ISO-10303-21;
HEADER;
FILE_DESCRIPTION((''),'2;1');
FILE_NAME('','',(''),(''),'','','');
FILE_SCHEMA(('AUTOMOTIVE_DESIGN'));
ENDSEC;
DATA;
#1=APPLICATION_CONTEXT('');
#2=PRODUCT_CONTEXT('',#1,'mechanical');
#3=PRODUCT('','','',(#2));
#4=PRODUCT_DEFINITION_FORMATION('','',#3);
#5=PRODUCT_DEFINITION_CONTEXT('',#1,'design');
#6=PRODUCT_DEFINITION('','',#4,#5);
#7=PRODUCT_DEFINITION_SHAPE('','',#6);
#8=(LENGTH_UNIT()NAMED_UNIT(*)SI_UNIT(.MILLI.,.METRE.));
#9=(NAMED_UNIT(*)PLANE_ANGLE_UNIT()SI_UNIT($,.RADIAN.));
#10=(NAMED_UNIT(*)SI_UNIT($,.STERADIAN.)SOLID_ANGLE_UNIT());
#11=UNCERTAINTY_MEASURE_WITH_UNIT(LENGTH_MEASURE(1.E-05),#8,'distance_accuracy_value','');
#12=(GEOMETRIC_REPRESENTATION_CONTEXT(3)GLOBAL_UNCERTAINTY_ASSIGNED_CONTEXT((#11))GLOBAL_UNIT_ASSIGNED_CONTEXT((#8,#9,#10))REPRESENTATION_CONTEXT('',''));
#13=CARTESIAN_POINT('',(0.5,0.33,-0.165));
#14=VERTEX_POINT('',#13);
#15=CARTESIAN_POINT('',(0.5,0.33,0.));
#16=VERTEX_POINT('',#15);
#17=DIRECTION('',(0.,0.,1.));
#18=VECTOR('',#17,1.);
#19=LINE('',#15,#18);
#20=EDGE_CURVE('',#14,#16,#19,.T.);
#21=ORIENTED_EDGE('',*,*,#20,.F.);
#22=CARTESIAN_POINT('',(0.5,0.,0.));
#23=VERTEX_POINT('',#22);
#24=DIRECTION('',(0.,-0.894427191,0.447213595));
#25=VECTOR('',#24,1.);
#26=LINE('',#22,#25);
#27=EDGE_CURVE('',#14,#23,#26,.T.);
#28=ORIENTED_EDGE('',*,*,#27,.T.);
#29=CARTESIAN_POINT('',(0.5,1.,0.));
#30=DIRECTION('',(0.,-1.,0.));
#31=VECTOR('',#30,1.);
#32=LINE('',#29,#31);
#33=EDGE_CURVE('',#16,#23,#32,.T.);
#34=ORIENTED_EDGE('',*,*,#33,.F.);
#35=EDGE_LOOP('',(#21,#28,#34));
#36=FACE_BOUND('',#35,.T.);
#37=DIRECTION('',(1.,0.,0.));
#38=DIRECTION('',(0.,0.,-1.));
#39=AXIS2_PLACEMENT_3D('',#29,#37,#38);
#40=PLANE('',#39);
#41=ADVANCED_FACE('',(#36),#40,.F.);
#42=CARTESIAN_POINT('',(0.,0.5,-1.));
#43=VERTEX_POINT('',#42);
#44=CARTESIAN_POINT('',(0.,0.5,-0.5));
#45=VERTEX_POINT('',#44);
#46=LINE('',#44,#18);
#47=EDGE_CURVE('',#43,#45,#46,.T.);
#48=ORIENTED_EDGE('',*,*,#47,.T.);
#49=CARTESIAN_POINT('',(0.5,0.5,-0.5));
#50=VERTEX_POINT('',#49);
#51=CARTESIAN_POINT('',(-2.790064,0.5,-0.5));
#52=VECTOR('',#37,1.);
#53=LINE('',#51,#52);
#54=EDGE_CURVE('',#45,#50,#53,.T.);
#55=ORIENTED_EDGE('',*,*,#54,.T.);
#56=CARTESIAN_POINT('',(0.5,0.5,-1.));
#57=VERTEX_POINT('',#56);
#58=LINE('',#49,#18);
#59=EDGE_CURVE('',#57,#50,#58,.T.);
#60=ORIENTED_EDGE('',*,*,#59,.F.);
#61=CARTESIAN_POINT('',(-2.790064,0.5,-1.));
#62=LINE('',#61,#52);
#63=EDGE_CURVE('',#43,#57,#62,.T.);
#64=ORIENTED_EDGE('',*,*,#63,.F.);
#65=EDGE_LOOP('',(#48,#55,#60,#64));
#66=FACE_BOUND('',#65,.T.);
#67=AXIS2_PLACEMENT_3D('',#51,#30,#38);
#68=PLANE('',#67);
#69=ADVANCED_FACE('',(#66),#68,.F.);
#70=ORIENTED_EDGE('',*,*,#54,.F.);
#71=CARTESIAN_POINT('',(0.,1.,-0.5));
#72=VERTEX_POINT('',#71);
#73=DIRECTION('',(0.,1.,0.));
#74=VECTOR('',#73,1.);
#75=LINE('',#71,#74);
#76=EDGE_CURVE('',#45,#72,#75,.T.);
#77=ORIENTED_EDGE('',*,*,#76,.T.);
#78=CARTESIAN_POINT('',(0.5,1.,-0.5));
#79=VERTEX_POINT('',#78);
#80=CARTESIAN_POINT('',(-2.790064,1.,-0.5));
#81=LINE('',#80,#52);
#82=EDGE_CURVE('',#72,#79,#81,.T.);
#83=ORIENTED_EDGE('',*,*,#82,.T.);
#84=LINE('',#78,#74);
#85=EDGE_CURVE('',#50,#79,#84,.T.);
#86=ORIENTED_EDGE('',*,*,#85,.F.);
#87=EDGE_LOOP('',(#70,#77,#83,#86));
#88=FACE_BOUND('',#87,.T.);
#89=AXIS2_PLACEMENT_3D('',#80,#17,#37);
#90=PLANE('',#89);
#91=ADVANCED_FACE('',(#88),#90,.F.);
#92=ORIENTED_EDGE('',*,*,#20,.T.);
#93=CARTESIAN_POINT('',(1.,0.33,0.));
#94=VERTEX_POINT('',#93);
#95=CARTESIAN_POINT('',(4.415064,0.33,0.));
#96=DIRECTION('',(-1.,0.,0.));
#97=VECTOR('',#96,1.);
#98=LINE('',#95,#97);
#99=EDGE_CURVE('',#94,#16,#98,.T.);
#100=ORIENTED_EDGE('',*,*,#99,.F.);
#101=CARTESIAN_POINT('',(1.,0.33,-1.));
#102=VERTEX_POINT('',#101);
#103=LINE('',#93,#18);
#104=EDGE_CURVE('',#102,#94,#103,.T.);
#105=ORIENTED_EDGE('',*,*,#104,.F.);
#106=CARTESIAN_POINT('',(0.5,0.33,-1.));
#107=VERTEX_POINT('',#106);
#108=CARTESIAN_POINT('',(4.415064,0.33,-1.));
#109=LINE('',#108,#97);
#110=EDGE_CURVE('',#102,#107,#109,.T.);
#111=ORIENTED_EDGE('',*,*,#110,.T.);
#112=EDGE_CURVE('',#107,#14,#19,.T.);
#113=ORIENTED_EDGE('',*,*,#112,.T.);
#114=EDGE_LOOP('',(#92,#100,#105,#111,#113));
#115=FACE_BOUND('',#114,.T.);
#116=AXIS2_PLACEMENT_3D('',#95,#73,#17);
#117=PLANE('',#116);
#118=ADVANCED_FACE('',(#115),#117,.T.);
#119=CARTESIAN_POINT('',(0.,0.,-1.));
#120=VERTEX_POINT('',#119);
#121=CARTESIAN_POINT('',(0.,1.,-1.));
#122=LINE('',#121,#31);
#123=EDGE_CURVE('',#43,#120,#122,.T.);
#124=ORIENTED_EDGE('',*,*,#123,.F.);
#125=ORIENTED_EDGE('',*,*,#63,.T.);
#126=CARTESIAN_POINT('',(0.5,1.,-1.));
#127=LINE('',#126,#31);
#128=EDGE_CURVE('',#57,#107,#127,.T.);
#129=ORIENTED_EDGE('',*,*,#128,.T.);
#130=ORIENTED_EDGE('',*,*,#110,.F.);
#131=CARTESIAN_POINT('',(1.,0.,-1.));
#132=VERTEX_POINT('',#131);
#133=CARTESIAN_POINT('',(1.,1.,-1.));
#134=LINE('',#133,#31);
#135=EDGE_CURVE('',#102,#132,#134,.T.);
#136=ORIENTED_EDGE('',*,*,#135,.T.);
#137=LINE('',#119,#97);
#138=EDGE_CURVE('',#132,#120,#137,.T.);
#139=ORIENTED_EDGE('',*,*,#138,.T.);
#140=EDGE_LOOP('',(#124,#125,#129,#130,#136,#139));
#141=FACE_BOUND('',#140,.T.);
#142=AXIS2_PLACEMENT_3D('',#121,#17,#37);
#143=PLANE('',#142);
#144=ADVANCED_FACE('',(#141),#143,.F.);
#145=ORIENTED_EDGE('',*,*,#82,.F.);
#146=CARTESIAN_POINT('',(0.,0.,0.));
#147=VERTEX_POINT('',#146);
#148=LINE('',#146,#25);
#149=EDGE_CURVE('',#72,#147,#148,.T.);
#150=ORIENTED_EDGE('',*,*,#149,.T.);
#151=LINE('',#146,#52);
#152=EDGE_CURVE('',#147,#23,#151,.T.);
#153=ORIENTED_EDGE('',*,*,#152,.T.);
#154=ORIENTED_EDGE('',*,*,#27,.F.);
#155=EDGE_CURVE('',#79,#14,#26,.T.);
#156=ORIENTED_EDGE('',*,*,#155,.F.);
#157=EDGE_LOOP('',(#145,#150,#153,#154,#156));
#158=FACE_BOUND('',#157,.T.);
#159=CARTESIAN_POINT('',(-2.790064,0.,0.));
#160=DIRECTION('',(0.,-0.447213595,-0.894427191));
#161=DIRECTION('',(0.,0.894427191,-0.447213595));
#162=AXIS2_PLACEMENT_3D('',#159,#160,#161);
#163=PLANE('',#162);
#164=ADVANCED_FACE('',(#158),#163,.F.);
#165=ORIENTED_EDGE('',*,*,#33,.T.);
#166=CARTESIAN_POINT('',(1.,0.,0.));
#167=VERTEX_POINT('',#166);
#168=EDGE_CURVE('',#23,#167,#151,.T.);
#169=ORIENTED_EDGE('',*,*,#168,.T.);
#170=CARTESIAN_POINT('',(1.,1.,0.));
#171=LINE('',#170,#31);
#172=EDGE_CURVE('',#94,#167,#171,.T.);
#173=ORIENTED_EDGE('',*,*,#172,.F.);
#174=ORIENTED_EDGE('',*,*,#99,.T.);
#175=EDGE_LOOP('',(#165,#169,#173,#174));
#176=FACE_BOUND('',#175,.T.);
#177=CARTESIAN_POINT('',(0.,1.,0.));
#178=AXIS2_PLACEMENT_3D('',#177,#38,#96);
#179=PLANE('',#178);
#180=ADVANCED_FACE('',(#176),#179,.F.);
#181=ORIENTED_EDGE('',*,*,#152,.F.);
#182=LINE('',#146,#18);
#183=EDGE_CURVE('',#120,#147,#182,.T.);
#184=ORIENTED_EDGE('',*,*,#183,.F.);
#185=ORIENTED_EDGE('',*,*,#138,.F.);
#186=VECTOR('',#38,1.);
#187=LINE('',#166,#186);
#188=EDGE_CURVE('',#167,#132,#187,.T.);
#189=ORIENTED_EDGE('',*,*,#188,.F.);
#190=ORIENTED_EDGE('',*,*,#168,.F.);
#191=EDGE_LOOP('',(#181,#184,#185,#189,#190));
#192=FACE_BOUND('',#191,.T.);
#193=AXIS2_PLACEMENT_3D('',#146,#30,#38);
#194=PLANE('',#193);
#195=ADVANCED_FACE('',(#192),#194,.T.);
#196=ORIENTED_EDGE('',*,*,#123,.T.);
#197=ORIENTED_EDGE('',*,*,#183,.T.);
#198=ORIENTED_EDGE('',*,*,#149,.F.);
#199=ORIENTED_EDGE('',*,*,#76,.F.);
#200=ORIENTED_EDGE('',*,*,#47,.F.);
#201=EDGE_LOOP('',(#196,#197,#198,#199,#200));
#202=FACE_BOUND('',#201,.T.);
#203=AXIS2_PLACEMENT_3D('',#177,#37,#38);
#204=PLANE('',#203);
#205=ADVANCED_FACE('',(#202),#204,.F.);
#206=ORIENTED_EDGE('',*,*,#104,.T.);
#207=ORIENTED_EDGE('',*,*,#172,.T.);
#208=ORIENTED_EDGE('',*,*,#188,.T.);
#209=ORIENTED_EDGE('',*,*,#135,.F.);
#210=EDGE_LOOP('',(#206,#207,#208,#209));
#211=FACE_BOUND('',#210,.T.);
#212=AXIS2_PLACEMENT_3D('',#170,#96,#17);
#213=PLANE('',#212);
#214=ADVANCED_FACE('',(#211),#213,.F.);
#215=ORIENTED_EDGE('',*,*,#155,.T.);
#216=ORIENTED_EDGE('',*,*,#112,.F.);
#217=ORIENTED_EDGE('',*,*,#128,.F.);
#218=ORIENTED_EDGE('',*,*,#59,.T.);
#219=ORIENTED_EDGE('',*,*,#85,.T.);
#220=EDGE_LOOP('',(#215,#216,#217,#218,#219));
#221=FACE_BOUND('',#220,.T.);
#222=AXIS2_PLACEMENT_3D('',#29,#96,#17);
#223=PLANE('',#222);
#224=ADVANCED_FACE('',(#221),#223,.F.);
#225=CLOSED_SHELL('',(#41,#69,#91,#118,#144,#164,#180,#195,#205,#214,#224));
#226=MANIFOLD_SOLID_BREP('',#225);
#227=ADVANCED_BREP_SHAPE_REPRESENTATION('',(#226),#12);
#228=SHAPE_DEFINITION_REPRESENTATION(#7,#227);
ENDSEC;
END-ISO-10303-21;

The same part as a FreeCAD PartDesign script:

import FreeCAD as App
import Part
import Sketcher
from FreeCAD import Vector


def add_polygon(sketch, points):
    """Adds a closed chain of lines whose ends are joined by coincident constraints."""
    first, n = sketch.GeometryCount, len(points)
    for a, b in zip(points, points[1:] + points[:1]):
        sketch.addGeometry(Part.LineSegment(App.Vector(*a, 0), App.Vector(*b, 0)), False)
    for i in range(n):
        sketch.addConstraint(Sketcher.Constraint("Coincident", first + i, 2, first + (i + 1) % n, 1))

doc = App.newDocument("Part")
params = doc.addObject("Spreadsheet::Sheet", "Params")
for row, (alias, value) in enumerate([
    ("sketch1_width", "1 mm"),
    ("pad1_length", "1 mm"),
    ("pocket1_length", "2.732051 mm"),
    ("pocket1_length2", "0.5 mm"),
    ("sketch3_width", "0.5 mm"),
    ("pocket2_length", "2.732051 mm"),
    ("pocket2_length2", "0.5 mm"),
], start=1):
    params.set(f"A{row}", alias)
    params.set(f"B{row}", "=" + value)
    params.setAlias(f"B{row}", alias)

body = doc.addObject("PartDesign::Body", "Body")

# Sketch on XZ plane
sketch1 = body.newObject("Sketcher::SketchObject", "Sketch")
sketch1.AttachmentSupport = (doc.getObject("XZ_Plane"), [""])
sketch1.MapMode = "FlatFace"
add_polygon(sketch1, [(0, -1), (0, 0), (1, 0), (1, -1)])  # lines 0-3
sketch1.addConstraint([
    Sketcher.Constraint("Vertical", 0),
    Sketcher.Constraint("Horizontal", 1),
    Sketcher.Constraint("Vertical", 2),
    Sketcher.Constraint("Horizontal", 3),
    Sketcher.Constraint("Coincident", 0, 2, -1, 1),
    Sketcher.Constraint("Equal", 3, 0),
    Sketcher.Constraint("DistanceX", 1, 1, 1, 2, 1.0),
])
sketch1.setExpression("Constraints[10]", "Params.sketch1_width")
pad1 = body.newObject("PartDesign::Pad", "Pad")
pad1.Profile = sketch1
pad1.setExpression("Length", "Params.pad1_length")
pad1.Reversed = True

# Sketch on YZ plane
sketch2 = body.newObject("Sketcher::SketchObject", "Sketch001")
sketch2.AttachmentSupport = (doc.getObject("YZ_Plane"), [""])
sketch2.MapMode = "FlatFace"
sketch2.AttachmentOffset = App.Placement(Vector(0, 0, 1), App.Rotation())
add_polygon(sketch2, [(0, 12), (0, -13), (25, -13), (25, 12)])  # lines 0-3
sketch2.addConstraint([
    Sketcher.Constraint("Vertical", 0),
    Sketcher.Constraint("Horizontal", 1),
    Sketcher.Constraint("Vertical", 2),
    Sketcher.Constraint("Horizontal", 3),
    Sketcher.Constraint("DistanceX", -1, 1, 0, 2, 0.33),
    Sketcher.Constraint("DistanceX", 1, 1, 1, 2, 24.81481),
    Sketcher.Constraint("DistanceY", 0, 2, 0, 1, 25.81481),
    Sketcher.Constraint("DistanceY", 0, 2, -1, 1, 13.407405),
])
pocket1 = body.newObject("PartDesign::Pocket", "Pocket")
pocket1.Profile = sketch2
pocket1.Type = "TwoLengths"
pocket1.setExpression("Length", "Params.pocket1_length")
pocket1.setExpression("Length2", "Params.pocket1_length2")
pocket1.Reversed = True

# Sketch on YZ plane
sketch3 = body.newObject("Sketcher::SketchObject", "Sketch002")
sketch3.AttachmentSupport = (doc.getObject("YZ_Plane"), [""])
sketch3.MapMode = "FlatFace"
add_polygon(sketch3, [(1, -0.5), (-11.5, 5.7), (10.4, 19.1), (22.4, -0.4), (0.5, -13.8), (0.5, -0.5)])  # lines 0-5
sketch3.addConstraint([
    Sketcher.Constraint("Vertical", 4),
    Sketcher.Constraint("Horizontal", 5),
    Sketcher.Constraint("Perpendicular", 1, 2),
    Sketcher.Constraint("Perpendicular", 2, 3),
    Sketcher.Constraint("Equal", 1, 3),
    Sketcher.Constraint("DistanceX", 5, 1, 5, 2, 0.5),
    Sketcher.Constraint("DistanceX", -1, 1, 5, 2, 1.0),
    Sketcher.Constraint("DistanceY", 4, 2, -1, 1, 0.5),
    Sketcher.Constraint("Distance", 0, 13.946461),
    Sketcher.Constraint("Distance", 2, 22.93876),
    Sketcher.Constraint("DistanceY", 4, 1, 4, 2, 13.328427),
    Sketcher.Constraint("DistanceX", -1, 1, 1, 2, 10.409762),
])
sketch3.setExpression("Constraints[11]", "Params.sketch3_width")
pocket2 = body.newObject("PartDesign::Pocket", "Pocket001")
pocket2.Profile = sketch3
pocket2.Type = "TwoLengths"
pocket2.setExpression("Length", "Params.pocket2_length")
pocket2.setExpression("Length2", "Params.pocket2_length2")

doc.recompute()
